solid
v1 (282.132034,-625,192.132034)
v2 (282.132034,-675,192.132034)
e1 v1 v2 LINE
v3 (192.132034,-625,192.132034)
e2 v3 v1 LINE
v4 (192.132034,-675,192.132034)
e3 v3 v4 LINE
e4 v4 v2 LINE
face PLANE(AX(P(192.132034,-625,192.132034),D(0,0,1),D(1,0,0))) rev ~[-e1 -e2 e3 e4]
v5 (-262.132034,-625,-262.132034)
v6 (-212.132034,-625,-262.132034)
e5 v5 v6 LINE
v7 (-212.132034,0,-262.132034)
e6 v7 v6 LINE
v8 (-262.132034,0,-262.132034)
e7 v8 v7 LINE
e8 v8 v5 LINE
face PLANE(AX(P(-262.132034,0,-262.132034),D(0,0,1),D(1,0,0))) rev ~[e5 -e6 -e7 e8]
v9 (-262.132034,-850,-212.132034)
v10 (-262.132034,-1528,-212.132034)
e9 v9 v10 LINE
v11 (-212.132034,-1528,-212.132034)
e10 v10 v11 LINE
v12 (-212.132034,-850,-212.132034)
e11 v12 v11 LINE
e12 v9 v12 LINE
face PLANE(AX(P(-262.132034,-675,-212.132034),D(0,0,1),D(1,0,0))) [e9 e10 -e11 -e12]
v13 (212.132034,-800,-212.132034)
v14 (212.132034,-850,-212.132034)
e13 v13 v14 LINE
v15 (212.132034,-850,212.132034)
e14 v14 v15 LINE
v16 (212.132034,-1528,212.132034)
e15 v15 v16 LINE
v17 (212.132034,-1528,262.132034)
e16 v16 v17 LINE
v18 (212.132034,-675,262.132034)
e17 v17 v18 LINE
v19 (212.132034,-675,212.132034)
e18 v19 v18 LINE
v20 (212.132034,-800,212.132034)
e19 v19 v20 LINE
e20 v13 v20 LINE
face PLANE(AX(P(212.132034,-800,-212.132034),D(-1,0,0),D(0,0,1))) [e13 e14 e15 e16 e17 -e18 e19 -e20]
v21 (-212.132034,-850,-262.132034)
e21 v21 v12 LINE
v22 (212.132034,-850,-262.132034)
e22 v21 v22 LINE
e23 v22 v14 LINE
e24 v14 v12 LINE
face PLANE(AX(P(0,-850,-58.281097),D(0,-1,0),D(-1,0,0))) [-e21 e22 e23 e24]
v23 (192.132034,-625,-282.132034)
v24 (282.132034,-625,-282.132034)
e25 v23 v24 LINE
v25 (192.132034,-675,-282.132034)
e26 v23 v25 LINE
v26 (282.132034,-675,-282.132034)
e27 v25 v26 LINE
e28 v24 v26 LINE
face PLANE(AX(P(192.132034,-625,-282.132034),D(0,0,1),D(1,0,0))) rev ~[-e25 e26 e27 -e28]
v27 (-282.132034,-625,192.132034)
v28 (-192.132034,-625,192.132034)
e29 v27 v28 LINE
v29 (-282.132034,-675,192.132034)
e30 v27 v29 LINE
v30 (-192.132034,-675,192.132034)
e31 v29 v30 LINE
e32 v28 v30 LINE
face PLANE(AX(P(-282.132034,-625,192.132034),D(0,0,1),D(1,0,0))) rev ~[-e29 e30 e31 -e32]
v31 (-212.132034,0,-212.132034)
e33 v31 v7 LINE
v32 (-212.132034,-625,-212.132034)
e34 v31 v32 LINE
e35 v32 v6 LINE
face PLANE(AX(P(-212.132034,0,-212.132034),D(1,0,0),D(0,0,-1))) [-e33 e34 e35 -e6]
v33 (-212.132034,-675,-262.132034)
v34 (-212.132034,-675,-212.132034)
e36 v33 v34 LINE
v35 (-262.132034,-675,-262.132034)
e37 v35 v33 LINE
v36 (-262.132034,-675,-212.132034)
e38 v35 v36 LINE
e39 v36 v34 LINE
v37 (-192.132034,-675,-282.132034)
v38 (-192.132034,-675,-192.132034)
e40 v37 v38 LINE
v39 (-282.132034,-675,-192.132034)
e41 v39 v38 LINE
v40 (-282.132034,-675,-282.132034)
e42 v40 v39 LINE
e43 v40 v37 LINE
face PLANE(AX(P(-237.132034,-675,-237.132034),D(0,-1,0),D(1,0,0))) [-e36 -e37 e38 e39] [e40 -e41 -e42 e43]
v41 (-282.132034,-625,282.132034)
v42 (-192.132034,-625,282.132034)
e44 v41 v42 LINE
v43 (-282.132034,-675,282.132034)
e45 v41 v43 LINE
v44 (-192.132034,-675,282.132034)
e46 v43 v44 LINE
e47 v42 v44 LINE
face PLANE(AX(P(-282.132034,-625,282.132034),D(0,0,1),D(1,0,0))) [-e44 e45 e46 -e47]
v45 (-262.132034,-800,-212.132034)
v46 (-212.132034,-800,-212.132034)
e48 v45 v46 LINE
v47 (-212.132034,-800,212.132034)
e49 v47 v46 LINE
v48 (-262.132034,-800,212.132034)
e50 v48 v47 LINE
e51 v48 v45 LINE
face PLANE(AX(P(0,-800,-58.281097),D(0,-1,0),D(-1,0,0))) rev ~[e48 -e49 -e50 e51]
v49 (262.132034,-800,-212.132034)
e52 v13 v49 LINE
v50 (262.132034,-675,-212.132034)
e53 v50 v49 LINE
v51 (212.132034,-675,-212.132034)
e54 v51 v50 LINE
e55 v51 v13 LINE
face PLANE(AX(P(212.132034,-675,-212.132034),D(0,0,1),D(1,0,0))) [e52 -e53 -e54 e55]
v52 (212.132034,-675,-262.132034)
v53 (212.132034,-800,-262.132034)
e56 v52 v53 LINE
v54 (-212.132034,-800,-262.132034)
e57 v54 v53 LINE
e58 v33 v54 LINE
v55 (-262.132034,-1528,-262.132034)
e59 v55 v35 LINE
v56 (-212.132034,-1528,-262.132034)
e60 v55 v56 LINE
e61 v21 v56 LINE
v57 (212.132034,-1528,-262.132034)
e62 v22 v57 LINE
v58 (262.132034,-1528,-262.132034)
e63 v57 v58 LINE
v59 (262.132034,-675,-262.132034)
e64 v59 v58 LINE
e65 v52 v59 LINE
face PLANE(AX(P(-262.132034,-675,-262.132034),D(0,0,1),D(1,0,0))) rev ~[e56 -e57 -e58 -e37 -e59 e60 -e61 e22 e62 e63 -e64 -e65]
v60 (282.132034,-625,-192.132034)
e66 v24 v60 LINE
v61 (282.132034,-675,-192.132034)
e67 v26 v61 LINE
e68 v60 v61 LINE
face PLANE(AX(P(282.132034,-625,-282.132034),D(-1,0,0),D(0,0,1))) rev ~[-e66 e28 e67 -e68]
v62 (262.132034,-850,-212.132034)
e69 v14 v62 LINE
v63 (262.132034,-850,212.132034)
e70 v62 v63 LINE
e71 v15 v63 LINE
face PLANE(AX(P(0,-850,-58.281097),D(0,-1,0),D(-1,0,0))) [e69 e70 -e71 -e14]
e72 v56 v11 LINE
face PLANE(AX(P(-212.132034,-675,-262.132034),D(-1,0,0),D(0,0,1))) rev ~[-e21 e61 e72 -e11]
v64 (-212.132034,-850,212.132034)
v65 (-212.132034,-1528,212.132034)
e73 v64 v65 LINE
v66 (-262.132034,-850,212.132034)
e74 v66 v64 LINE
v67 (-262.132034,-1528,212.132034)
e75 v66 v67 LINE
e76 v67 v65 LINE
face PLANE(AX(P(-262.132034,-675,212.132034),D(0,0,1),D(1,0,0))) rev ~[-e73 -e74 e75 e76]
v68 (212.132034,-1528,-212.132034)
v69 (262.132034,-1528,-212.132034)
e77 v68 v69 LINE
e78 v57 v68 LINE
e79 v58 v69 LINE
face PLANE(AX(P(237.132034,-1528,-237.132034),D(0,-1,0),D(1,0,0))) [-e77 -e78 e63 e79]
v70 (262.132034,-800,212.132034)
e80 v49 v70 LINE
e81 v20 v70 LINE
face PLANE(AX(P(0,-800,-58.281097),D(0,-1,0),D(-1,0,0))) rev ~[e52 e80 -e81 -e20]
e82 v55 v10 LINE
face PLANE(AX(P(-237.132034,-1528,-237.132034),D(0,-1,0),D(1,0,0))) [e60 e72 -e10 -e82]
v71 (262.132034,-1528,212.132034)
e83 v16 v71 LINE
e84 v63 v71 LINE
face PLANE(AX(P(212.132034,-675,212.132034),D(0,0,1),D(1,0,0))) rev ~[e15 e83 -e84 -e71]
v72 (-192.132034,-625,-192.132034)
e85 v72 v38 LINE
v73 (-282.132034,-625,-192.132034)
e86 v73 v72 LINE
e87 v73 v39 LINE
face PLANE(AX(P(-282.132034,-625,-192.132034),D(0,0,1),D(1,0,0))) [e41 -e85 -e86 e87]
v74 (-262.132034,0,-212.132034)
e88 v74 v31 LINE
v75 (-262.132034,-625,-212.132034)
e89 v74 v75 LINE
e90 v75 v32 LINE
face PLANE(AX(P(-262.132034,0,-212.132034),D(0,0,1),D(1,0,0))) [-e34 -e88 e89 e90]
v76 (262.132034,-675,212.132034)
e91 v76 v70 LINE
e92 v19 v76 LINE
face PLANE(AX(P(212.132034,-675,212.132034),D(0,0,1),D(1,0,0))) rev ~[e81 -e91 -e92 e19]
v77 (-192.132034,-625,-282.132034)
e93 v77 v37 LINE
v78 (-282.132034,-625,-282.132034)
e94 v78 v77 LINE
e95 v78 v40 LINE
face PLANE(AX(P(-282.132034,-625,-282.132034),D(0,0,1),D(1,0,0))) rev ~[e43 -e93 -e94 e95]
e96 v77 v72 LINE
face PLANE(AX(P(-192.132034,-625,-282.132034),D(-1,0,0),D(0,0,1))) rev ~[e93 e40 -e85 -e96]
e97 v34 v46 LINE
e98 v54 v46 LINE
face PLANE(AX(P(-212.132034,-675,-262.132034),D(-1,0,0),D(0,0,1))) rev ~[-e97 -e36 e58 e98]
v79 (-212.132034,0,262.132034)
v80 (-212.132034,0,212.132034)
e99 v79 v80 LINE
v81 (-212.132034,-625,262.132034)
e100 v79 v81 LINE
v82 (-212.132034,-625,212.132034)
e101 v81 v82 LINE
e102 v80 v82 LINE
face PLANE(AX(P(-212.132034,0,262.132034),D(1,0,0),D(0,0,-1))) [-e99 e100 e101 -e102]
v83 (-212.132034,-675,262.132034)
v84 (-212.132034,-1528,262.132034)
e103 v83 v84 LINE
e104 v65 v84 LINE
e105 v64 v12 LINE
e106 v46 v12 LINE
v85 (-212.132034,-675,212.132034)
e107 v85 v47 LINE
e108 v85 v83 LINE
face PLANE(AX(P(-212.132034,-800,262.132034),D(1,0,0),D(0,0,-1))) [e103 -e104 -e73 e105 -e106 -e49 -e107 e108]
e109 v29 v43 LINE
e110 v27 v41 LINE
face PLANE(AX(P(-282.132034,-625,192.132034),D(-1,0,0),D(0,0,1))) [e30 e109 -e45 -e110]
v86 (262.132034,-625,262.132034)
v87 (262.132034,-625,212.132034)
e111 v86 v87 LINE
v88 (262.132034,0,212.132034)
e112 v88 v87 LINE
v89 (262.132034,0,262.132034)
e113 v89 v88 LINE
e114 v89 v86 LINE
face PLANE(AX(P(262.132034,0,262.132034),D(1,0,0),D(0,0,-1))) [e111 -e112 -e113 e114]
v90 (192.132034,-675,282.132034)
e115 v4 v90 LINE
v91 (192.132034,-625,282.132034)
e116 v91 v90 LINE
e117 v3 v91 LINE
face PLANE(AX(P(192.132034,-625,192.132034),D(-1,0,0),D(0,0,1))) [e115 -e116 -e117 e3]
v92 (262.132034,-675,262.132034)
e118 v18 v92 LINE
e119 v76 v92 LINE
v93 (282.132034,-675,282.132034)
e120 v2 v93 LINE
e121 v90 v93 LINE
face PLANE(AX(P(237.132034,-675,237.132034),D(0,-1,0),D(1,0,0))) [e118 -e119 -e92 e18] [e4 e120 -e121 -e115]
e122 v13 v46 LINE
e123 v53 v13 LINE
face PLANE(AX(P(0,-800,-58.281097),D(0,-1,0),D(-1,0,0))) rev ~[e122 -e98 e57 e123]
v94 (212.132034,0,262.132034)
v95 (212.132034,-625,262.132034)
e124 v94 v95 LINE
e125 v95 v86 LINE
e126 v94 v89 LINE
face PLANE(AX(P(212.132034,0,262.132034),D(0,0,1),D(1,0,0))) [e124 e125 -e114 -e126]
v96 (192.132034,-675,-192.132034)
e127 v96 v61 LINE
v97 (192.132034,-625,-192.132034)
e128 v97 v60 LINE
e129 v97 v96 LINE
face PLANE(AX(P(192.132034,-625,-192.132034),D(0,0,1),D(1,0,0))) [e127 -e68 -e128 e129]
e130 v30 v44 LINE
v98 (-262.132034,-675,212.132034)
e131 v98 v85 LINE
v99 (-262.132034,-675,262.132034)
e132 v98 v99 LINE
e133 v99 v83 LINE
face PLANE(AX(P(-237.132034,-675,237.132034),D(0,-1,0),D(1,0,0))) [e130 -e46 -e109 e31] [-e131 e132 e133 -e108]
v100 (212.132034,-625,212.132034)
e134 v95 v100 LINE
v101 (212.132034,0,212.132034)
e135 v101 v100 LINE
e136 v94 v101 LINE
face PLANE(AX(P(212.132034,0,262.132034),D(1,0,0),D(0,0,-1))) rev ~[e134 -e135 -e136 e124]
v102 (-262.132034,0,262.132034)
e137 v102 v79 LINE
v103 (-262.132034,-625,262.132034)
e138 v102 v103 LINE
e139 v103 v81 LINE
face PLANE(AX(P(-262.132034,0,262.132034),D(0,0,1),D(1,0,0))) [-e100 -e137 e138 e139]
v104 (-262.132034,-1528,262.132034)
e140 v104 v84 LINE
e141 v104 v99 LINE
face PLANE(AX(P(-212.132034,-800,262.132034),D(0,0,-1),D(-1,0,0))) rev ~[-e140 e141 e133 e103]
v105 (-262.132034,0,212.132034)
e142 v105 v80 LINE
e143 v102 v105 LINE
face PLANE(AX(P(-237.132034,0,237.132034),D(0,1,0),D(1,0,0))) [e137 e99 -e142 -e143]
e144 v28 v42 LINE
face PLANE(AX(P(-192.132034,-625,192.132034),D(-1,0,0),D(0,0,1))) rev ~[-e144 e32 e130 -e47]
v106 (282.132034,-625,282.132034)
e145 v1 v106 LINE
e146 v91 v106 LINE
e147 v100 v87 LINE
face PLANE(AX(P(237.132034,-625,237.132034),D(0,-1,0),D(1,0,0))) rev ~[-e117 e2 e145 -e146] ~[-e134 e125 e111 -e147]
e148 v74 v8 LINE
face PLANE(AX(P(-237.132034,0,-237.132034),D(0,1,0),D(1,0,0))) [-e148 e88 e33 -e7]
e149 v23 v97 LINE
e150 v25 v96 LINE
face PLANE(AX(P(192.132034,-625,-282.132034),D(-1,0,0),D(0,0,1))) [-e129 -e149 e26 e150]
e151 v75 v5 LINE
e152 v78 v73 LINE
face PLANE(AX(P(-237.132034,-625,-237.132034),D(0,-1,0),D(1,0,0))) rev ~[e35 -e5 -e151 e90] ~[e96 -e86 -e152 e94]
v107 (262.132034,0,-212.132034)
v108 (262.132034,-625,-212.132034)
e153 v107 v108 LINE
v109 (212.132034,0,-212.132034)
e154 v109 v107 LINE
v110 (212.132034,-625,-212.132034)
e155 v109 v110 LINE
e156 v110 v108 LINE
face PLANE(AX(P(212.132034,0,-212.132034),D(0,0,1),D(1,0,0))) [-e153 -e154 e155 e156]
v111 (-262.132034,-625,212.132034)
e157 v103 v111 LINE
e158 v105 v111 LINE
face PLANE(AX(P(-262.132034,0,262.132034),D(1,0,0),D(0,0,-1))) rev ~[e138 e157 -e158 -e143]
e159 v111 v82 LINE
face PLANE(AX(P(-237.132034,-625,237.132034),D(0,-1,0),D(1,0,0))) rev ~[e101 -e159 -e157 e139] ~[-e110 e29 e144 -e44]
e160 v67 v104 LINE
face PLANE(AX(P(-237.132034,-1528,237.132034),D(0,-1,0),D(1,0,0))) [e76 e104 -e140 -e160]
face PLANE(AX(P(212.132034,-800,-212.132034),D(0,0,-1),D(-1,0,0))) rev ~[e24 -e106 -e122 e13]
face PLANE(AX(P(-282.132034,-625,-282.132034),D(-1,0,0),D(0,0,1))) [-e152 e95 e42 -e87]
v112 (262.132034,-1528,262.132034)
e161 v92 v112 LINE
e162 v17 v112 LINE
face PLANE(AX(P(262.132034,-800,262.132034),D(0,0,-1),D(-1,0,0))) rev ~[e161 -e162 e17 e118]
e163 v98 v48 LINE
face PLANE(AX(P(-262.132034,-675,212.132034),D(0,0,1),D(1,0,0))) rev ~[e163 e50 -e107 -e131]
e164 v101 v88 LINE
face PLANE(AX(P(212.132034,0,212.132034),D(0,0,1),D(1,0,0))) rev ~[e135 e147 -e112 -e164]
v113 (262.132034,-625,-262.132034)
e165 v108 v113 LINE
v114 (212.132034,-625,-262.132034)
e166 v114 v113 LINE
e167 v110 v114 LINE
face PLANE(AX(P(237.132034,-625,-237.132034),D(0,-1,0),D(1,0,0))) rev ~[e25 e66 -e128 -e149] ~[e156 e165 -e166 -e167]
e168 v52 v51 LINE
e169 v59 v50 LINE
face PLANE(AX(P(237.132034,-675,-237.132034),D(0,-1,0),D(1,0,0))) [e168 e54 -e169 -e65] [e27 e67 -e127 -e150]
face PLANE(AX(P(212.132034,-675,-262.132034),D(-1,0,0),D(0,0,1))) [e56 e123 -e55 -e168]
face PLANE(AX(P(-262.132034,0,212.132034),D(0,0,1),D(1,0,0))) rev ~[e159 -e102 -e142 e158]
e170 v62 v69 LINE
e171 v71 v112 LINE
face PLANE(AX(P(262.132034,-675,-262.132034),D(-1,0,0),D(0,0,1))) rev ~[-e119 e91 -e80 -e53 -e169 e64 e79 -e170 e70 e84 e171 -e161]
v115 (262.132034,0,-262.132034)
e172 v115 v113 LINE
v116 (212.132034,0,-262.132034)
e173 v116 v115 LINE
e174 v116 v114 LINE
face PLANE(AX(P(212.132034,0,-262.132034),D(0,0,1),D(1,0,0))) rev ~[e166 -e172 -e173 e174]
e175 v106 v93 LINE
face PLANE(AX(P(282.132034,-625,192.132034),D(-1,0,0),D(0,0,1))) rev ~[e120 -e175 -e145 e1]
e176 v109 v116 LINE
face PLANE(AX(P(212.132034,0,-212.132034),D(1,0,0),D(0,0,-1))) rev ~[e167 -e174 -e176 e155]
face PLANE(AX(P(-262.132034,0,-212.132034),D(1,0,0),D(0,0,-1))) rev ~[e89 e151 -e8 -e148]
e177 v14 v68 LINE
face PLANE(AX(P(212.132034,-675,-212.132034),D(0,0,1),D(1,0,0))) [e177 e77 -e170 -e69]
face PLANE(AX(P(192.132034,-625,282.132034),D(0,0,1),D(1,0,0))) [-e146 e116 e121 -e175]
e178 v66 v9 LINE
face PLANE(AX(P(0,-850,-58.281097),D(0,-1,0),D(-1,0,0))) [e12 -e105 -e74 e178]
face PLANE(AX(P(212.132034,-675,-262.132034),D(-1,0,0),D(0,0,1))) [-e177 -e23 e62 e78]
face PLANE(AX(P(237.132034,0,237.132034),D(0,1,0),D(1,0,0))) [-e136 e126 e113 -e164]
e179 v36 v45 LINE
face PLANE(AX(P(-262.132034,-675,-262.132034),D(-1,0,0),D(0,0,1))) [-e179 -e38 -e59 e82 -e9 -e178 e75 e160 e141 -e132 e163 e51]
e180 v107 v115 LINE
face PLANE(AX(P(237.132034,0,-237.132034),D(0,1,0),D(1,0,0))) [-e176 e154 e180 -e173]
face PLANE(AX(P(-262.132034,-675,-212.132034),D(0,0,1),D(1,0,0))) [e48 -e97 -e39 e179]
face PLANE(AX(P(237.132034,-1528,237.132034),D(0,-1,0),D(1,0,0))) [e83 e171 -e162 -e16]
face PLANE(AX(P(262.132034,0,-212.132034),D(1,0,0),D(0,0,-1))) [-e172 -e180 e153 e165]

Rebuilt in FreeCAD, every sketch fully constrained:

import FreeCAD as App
import Part
import Sketcher
from FreeCAD import Vector


def add_polygon(sketch, points):
    """Adds a closed chain of lines whose ends are joined by coincident constraints."""
    first, n = sketch.GeometryCount, len(points)
    for a, b in zip(points, points[1:] + points[:1]):
        sketch.addGeometry(Part.LineSegment(App.Vector(*a, 0), App.Vector(*b, 0)), False)
    for i in range(n):
        sketch.addConstraint(Sketcher.Constraint("Coincident", first + i, 2, first + (i + 1) % n, 1))

doc = App.newDocument("Part")
body = doc.addObject("PartDesign::Body", "Body")

# Sketch on XZ plane
sketch1 = doc.addObject("Sketcher::SketchObject", "Sketch")
body.addObject(sketch1)
sketch1.AttachmentSupport = (doc.XZ_Plane, [""])
sketch1.MapMode = "FlatFace"
add_polygon(sketch1, [(-262.132034, -262.132034), (-262.132034, -212.132034), (-212.132034, -212.132034), (-212.132034, -262.132034)])  # lines 0-3
sketch1.addConstraint([
    Sketcher.Constraint("Vertical", 0),
    Sketcher.Constraint("Horizontal", 1),
    Sketcher.Constraint("Vertical", 2),
    Sketcher.Constraint("Horizontal", 3),
    Sketcher.Constraint("Equal", 3, 0),
    Sketcher.Constraint("DistanceX", 1, 1, 1, 2, 50.0),
    Sketcher.Constraint("DistanceX", 0, 2, -1, 1, 262.132034),
    Sketcher.Constraint("DistanceY", 0, 2, -1, 1, 212.132034),
])
pad1 = doc.addObject("PartDesign::Pad", "Pad")
body.addObject(pad1)
pad1.Profile = sketch1
pad1.Length = 625
body2 = doc.addObject("PartDesign::Body", "Body001")

# Sketch on XZ plane
sketch2 = doc.addObject("Sketcher::SketchObject", "Sketch001")
body2.addObject(sketch2)
sketch2.AttachmentSupport = (doc.getObject("XZ_Plane001"), [""])
sketch2.MapMode = "FlatFace"
add_polygon(sketch2, [(212.132034, -262.132034), (212.132034, -212.132034), (262.132034, -212.132034), (262.132034, -262.132034)])  # lines 0-3
sketch2.addConstraint([
    Sketcher.Constraint("Vertical", 0),
    Sketcher.Constraint("Horizontal", 1),
    Sketcher.Constraint("Vertical", 2),
    Sketcher.Constraint("Horizontal", 3),
    Sketcher.Constraint("Equal", 3, 0),
    Sketcher.Constraint("DistanceX", 1, 1, 1, 2, 50.0),
    Sketcher.Constraint("DistanceX", -1, 1, 0, 2, 212.132034),
    Sketcher.Constraint("DistanceY", 0, 2, -1, 1, 212.132034),
])
pad2 = doc.addObject("PartDesign::Pad", "Pad001")
body2.addObject(pad2)
pad2.Profile = sketch2
pad2.Length = 625
body3 = doc.addObject("PartDesign::Body", "Body002")

# Sketch on XZ plane
sketch3 = doc.addObject("Sketcher::SketchObject", "Sketch002")
body3.addObject(sketch3)
sketch3.AttachmentSupport = (doc.getObject("XZ_Plane002"), [""])
sketch3.MapMode = "FlatFace"
add_polygon(sketch3, [(-262.132034, 212.132034), (-262.132034, 262.132034), (-212.132034, 262.132034), (-212.132034, 212.132034)])  # lines 0-3
sketch3.addConstraint([
    Sketcher.Constraint("Vertical", 0),
    Sketcher.Constraint("Horizontal", 1),
    Sketcher.Constraint("Vertical", 2),
    Sketcher.Constraint("Horizontal", 3),
    Sketcher.Constraint("Equal", 3, 0),
    Sketcher.Constraint("DistanceX", 1, 1, 1, 2, 50.0),
    Sketcher.Constraint("DistanceX", 0, 2, -1, 1, 262.132034),
    Sketcher.Constraint("DistanceY", -1, 1, 0, 2, 262.132034),
])
pad3 = doc.addObject("PartDesign::Pad", "Pad002")
body3.addObject(pad3)
pad3.Profile = sketch3
pad3.Length = 625
body4 = doc.addObject("PartDesign::Body", "Body003")

# Sketch on XZ plane
sketch4 = doc.addObject("Sketcher::SketchObject", "Sketch003")
body4.addObject(sketch4)
sketch4.AttachmentSupport = (doc.getObject("XZ_Plane003"), [""])
sketch4.MapMode = "FlatFace"
add_polygon(sketch4, [(212.132034, 212.132034), (212.132034, 262.132034), (262.132034, 262.132034), (262.132034, 212.132034)])  # lines 0-3
sketch4.addConstraint([
    Sketcher.Constraint("Vertical", 0),
    Sketcher.Constraint("Horizontal", 1),
    Sketcher.Constraint("Vertical", 2),
    Sketcher.Constraint("Horizontal", 3),
    Sketcher.Constraint("Equal", 3, 0),
    Sketcher.Constraint("DistanceX", 1, 1, 1, 2, 50.0),
    Sketcher.Constraint("DistanceX", -1, 1, 0, 2, 212.132034),
    Sketcher.Constraint("DistanceY", -1, 1, 0, 2, 262.132034),
])
pad4 = doc.addObject("PartDesign::Pad", "Pad003")
body4.addObject(pad4)
pad4.Profile = sketch4
pad4.Length = 625
body.AllowCompound = True
doc.recompute()

boolean = doc.addObject("PartDesign::Boolean", "Boolean")
body.addObject(boolean)
boolean.Type = "Fuse"
boolean.addObjects([body2])
doc.recompute()

boolean2 = doc.addObject("PartDesign::Boolean", "Boolean001")
body.addObject(boolean2)
boolean2.Type = "Fuse"
boolean2.addObjects([body3])
doc.recompute()

boolean3 = doc.addObject("PartDesign::Boolean", "Boolean002")
body.addObject(boolean3)
boolean3.Type = "Fuse"
boolean3.addObjects([body4])

# Sketch on XZ plane
sketch5 = doc.addObject("Sketcher::SketchObject", "Sketch004")
body.addObject(sketch5)
sketch5.AttachmentSupport = (doc.XZ_Plane, [""])
sketch5.MapMode = "FlatFace"
sketch5.AttachmentOffset = App.Placement(Vector(0, 0, 625), App.Rotation())
add_polygon(sketch5, [(-282.132034, 282.132034), (-282.132034, 192.132034), (-192.132034, 192.132034), (-192.132034, 282.132034)])  # lines 0-3
add_polygon(sketch5, [(192.132034, 282.132034), (192.132034, 192.132034), (282.132034, 192.132034), (282.132034, 282.132034)])  # lines 4-7
add_polygon(sketch5, [(192.132034, -192.132034), (192.132034, -282.132034), (282.132034, -282.132034), (282.132034, -192.132034)])  # lines 8-11
add_polygon(sketch5, [(-282.132034, -192.132034), (-282.132034, -282.132034), (-192.132034, -282.132034), (-192.132034, -192.132034)])  # lines 12-15
sketch5.addConstraint([
    Sketcher.Constraint("Vertical", 0),
    Sketcher.Constraint("Horizontal", 1),
    Sketcher.Constraint("Vertical", 2),
    Sketcher.Constraint("Horizontal", 3),
    Sketcher.Constraint("Vertical", 4),
    Sketcher.Constraint("Horizontal", 5),
    Sketcher.Constraint("Vertical", 6),
    Sketcher.Constraint("Horizontal", 7),
    Sketcher.Constraint("Vertical", 8),
    Sketcher.Constraint("Horizontal", 9),
    Sketcher.Constraint("Vertical", 10),
    Sketcher.Constraint("Horizontal", 11),
    Sketcher.Constraint("Vertical", 12),
    Sketcher.Constraint("Horizontal", 13),
    Sketcher.Constraint("Vertical", 14),
    Sketcher.Constraint("Horizontal", 15),
    Sketcher.Constraint("Symmetric", 2, 2, 8, 2, -1, 1),
    Sketcher.Constraint("Symmetric", 0, 2, 10, 2, -1, 1),
    Sketcher.Constraint("Symmetric", 6, 2, 12, 2, -1, 1),
    Sketcher.Constraint("Symmetric", 4, 2, 14, 2, -1, 1),
    Sketcher.Constraint("Symmetric", 1, 2, 4, 2, -2),
    Sketcher.Constraint("Symmetric", 3, 2, 6, 2, -2),
    Sketcher.Constraint("Equal", 15, 0),
    Sketcher.Constraint("DistanceX", 1, 1, 1, 2, 90.0),
    Sketcher.Constraint("DistanceX", 1, 2, 4, 2, 384.264069),
    Sketcher.Constraint("DistanceY", 8, 2, 4, 2, 474.264069),
])
pad5 = doc.addObject("PartDesign::Pad", "Pad004")
body.addObject(pad5)
pad5.Profile = sketch5
pad5.Length = 50

# Sketch on XZ plane
sketch6 = doc.addObject("Sketcher::SketchObject", "Sketch005")
body.addObject(sketch6)
sketch6.AttachmentSupport = (doc.XZ_Plane, [""])
sketch6.MapMode = "FlatFace"
sketch6.AttachmentOffset = App.Placement(Vector(0, 0, 675), App.Rotation())
add_polygon(sketch6, [(-262.132034, 262.132034), (-262.132034, 212.132034), (-212.132034, 212.132034), (-212.132034, 262.132034)])  # lines 0-3
add_polygon(sketch6, [(-262.132034, -212.132034), (-262.132034, -262.132034), (-212.132034, -262.132034), (-212.132034, -212.132034)])  # lines 4-7
add_polygon(sketch6, [(212.132034, 262.132034), (212.132034, 212.132034), (262.132034, 212.132034), (262.132034, 262.132034)])  # lines 8-11
add_polygon(sketch6, [(212.132034, -212.132034), (212.132034, -262.132034), (262.132034, -262.132034), (262.132034, -212.132034)])  # lines 12-15
sketch6.addConstraint([
    Sketcher.Constraint("Vertical", 0),
    Sketcher.Constraint("Horizontal", 1),
    Sketcher.Constraint("Vertical", 2),
    Sketcher.Constraint("Horizontal", 3),
    Sketcher.Constraint("Vertical", 4),
    Sketcher.Constraint("Horizontal", 5),
    Sketcher.Constraint("Vertical", 6),
    Sketcher.Constraint("Horizontal", 7),
    Sketcher.Constraint("Vertical", 8),
    Sketcher.Constraint("Horizontal", 9),
    Sketcher.Constraint("Vertical", 10),
    Sketcher.Constraint("Horizontal", 11),
    Sketcher.Constraint("Vertical", 12),
    Sketcher.Constraint("Horizontal", 13),
    Sketcher.Constraint("Vertical", 14),
    Sketcher.Constraint("Horizontal", 15),
    Sketcher.Constraint("Symmetric", 6, 2, 8, 2, -1, 1),
    Sketcher.Constraint("Symmetric", 4, 2, 10, 2, -1, 1),
    Sketcher.Constraint("Symmetric", 2, 2, 12, 2, -1, 1),
    Sketcher.Constraint("Symmetric", 0, 2, 14, 2, -1, 1),
    Sketcher.Constraint("Symmetric", 1, 2, 8, 2, -2),
    Sketcher.Constraint("Symmetric", 3, 2, 10, 2, -2),
    Sketcher.Constraint("Equal", 15, 0),
    Sketcher.Constraint("DistanceX", 1, 1, 1, 2, 50.0),
    Sketcher.Constraint("DistanceY", 4, 2, 0, 2, 474.264069),
    Sketcher.Constraint("DistanceX", 1, 2, 8, 2, 424.264069),
])
pad6 = doc.addObject("PartDesign::Pad", "Pad005")
body.addObject(pad6)
pad6.Profile = sketch6
pad6.Length = 853

# Sketch on XZ plane
sketch7 = doc.addObject("Sketcher::SketchObject", "Sketch006")
body.addObject(sketch7)
sketch7.AttachmentSupport = (doc.XZ_Plane, [""])
sketch7.MapMode = "FlatFace"
sketch7.AttachmentOffset = App.Placement(Vector(0, 0, 800), App.Rotation())
add_polygon(sketch7, [(262.132034, -262.132034), (-262.132034, -262.132034), (-262.132034, 262.132034), (-212.132034, 262.132034), (-212.132034, -212.132034), (212.132034, -212.132034), (212.132034, 262.132034), (262.132034, 262.132034)])  # lines 0-7
sketch7.addConstraint([
    Sketcher.Constraint("Horizontal", 0),
    Sketcher.Constraint("Vertical", 1),
    Sketcher.Constraint("Horizontal", 2),
    Sketcher.Constraint("Vertical", 3),
    Sketcher.Constraint("Horizontal", 4),
    Sketcher.Constraint("Vertical", 5),
    Sketcher.Constraint("Horizontal", 6),
    Sketcher.Constraint("Vertical", 7),
    Sketcher.Constraint("Symmetric", 0, 2, 6, 2, -1, 1),
    Sketcher.Constraint("Symmetric", 2, 2, 5, 2, -2),
    Sketcher.Constraint("Equal", 0, 1),
    Sketcher.Constraint("DistanceX", 2, 1, 2, 2, 50.0),
    Sketcher.Constraint("DistanceY", 0, 2, 3, 2, 50.0),
    Sketcher.Constraint("DistanceX", 0, 2, 0, 1, 524.264069),
])
pad7 = doc.addObject("PartDesign::Pad", "Pad006")
body.addObject(pad7)
pad7.Profile = sketch7
pad7.Length = 50

doc.recompute()
